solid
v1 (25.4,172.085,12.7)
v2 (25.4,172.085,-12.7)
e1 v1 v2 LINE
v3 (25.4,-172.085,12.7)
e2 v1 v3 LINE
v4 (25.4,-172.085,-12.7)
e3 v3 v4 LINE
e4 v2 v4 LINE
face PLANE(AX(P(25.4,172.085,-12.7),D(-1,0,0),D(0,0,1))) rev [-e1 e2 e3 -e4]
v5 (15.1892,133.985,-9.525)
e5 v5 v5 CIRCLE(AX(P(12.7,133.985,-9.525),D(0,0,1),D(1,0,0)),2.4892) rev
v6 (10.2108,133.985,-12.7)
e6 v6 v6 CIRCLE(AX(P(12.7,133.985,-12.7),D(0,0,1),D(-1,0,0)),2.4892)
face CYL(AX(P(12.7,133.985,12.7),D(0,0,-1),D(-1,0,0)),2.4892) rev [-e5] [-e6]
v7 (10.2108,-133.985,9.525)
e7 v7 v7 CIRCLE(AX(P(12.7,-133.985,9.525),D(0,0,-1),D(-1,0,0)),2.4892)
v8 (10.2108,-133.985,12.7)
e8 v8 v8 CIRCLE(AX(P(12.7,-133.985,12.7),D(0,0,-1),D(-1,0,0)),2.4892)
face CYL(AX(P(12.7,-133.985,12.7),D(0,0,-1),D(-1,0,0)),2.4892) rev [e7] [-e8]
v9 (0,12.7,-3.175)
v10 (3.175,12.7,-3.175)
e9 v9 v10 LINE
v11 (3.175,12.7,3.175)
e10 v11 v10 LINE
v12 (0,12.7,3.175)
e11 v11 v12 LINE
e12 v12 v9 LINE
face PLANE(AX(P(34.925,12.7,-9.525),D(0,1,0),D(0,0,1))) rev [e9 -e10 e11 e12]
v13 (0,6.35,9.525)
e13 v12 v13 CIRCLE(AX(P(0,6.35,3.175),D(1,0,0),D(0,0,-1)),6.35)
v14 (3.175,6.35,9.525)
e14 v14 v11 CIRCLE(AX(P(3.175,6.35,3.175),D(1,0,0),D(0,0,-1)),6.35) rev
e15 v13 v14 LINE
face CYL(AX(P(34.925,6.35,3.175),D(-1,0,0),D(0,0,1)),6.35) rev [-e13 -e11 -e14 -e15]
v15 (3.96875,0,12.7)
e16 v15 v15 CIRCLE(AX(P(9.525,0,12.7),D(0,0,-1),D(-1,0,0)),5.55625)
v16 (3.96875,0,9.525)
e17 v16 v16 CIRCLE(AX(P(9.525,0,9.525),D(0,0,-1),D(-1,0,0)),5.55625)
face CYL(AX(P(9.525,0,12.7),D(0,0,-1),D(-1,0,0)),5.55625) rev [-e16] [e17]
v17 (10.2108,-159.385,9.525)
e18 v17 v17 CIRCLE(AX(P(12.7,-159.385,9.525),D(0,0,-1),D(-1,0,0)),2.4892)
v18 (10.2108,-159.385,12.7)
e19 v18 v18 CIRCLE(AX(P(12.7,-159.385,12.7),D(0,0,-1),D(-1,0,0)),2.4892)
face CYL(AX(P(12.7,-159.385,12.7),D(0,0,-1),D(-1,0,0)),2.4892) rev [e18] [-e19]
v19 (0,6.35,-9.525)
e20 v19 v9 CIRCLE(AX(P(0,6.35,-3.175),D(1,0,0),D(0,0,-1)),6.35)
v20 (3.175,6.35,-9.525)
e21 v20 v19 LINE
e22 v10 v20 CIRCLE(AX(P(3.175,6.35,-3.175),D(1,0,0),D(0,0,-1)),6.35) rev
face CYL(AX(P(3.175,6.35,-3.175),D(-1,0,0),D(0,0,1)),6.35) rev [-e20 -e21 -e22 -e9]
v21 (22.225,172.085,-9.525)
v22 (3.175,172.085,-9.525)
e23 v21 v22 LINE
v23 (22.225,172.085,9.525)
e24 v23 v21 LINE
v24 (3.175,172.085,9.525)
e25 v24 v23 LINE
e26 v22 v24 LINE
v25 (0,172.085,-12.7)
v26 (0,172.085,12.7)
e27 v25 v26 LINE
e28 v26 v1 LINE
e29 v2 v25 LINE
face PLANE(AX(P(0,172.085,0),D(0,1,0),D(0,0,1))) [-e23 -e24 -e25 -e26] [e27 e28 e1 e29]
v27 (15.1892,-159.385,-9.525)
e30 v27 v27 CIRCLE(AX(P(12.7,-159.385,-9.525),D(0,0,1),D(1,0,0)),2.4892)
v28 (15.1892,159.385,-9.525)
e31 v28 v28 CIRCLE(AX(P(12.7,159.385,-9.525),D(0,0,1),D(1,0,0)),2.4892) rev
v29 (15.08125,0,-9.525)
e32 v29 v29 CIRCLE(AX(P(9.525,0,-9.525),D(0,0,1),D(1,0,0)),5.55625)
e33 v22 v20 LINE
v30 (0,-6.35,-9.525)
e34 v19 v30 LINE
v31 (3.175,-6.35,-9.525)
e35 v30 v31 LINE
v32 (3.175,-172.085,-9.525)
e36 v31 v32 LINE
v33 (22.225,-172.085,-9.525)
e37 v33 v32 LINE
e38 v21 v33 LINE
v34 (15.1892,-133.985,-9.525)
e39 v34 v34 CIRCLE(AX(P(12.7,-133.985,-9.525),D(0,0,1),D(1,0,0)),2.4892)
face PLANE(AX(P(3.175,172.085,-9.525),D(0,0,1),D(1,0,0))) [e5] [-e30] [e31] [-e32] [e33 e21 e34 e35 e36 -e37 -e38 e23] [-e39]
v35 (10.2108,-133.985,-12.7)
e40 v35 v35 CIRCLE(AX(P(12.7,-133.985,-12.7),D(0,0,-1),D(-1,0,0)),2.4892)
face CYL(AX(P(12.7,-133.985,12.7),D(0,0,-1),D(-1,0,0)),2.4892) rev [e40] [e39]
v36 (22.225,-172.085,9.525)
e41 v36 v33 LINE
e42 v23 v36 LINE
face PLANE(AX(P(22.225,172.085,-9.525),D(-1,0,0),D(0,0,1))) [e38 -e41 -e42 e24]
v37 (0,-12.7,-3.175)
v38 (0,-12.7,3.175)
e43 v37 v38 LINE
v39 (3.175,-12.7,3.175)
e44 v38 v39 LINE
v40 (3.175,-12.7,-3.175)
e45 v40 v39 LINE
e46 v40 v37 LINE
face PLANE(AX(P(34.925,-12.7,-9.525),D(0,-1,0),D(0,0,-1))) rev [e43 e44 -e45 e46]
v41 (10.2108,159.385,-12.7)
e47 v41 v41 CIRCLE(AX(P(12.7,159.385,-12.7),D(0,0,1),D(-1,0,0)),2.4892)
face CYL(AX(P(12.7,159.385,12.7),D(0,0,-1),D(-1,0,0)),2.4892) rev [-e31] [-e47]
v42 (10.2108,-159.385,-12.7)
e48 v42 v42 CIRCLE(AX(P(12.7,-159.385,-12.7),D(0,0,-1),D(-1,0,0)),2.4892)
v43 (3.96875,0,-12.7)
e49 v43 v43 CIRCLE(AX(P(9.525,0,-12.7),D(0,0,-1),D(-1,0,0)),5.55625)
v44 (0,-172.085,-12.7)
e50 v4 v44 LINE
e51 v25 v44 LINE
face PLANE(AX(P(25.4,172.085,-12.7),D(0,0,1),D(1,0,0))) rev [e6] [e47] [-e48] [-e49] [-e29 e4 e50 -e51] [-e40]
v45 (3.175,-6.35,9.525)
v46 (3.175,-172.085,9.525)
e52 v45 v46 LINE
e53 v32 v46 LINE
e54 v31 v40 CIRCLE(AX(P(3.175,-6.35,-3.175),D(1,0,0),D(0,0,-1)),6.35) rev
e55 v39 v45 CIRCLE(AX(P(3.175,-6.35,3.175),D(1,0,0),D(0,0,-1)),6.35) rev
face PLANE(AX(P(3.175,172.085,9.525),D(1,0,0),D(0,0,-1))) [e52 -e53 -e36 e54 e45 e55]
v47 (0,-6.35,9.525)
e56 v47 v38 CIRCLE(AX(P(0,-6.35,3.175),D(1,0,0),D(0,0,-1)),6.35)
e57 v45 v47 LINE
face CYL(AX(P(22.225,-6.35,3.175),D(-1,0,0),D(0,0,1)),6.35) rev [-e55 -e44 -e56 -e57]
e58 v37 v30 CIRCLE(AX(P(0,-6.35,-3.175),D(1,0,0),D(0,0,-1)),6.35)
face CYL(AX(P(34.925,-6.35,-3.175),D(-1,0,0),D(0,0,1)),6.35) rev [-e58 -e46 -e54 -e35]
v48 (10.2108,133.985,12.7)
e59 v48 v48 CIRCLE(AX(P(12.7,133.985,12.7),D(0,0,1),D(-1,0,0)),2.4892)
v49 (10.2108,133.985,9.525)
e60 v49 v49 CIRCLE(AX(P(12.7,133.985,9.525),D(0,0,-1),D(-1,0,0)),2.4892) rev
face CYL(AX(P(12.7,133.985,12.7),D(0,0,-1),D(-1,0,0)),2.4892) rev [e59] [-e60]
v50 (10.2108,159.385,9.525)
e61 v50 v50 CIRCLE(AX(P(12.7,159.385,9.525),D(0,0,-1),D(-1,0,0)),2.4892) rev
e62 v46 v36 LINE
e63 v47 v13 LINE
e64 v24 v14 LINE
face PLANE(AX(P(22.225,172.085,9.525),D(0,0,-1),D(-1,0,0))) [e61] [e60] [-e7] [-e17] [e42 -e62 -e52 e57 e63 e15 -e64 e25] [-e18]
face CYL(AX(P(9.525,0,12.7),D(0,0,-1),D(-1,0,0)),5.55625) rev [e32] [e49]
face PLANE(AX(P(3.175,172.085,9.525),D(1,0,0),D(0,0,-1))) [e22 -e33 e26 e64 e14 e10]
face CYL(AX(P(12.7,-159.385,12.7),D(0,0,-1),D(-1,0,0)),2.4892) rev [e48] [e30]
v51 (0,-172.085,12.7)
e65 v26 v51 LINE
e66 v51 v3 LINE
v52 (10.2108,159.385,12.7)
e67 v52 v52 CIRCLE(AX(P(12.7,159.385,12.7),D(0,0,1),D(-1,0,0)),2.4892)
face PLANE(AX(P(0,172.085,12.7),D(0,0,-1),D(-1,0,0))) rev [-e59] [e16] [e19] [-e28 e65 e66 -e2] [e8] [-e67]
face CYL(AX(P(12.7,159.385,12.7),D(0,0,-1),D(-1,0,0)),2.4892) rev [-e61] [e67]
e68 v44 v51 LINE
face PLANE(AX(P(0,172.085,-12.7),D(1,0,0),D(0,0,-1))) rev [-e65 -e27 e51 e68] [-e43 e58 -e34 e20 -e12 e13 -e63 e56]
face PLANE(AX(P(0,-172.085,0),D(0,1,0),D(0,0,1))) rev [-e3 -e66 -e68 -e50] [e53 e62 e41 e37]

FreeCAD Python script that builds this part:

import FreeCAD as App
import Part
import Sketcher

V = App.Vector
Q = App.Units.Quantity


def edges_at(feature, points):
    """Names of the edges that pass closest to the given points."""
    edges = feature.Shape.Edges
    near = lambda p: min(range(len(edges)), key=lambda i: edges[i].distToShape(Part.Vertex(*p))[0])
    return sorted({f"Edge{near(p) + 1}" for p in points})


def add_polygon(sketch, points):
    """Adds a closed chain of lines whose ends are joined by coincident constraints."""
    first, n = sketch.GeometryCount, len(points)
    for a, b in zip(points, points[1:] + points[:1]):
        sketch.addGeometry(Part.LineSegment(App.Vector(*a, 0), App.Vector(*b, 0)), False)
    for i in range(n):
        sketch.addConstraint(Sketcher.Constraint("Coincident", first + i, 2, first + (i + 1) % n, 1))

doc = App.newDocument("Part")
body = doc.addObject("PartDesign::Body", "Body")

# Sketch on XZ plane
sketch1 = doc.addObject("Sketcher::SketchObject", "Sketch")
body.addObject(sketch1)
sketch1.AttachmentSupport = (doc.XZ_Plane, [""])
sketch1.MapMode = "FlatFace"
add_polygon(sketch1, [(0, -12.7), (0, 12.7), (25.4, 12.7), (25.4, -12.7)])  # lines 0-3
add_polygon(sketch1, [(22.225, 9.525), (3.175, 9.525), (3.175, -9.525), (22.225, -9.525)])  # lines 4-7
sketch1.addConstraint(Sketcher.Constraint("Vertical", 0))
sketch1.addConstraint(Sketcher.Constraint("Horizontal", 1))
sketch1.addConstraint(Sketcher.Constraint("Vertical", 2))
sketch1.addConstraint(Sketcher.Constraint("Horizontal", 3))
sketch1.addConstraint(Sketcher.Constraint("Horizontal", 4))
sketch1.addConstraint(Sketcher.Constraint("Vertical", 5))
sketch1.addConstraint(Sketcher.Constraint("Horizontal", 6))
sketch1.addConstraint(Sketcher.Constraint("Vertical", 7))
sketch1.addConstraint(Sketcher.Constraint("Symmetric", 0, 2, 3, 2, -1, 1))
sketch1.addConstraint(Sketcher.Constraint("Equal", 3, 0))
sketch1.addConstraint(Sketcher.Constraint("Equal", 6, 5))
sketch1.addConstraint(Sketcher.Constraint("DistanceX", 1, 1, 1, 2, Q("1 in")))
sketch1.addConstraint(Sketcher.Constraint("DistanceX", 4, 2, 4, 1, Q("0.75 in")))
sketch1.addConstraint(Sketcher.Constraint("DistanceX", -1, 1, 4, 2, Q("0.125 in")))
sketch1.addConstraint(Sketcher.Constraint("DistanceY", -1, 1, 4, 2, Q("0.375 in")))
pad1 = doc.addObject("PartDesign::Pad", "Pad")
body.addObject(pad1)
pad1.Profile = sketch1
pad1.Length = Q("13.55 in")
pad1.Midplane = True

# Sketch on YZ plane
sketch2 = doc.addObject("Sketcher::SketchObject", "Sketch001")
body.addObject(sketch2)
sketch2.AttachmentSupport = (doc.YZ_Plane, [""])
sketch2.MapMode = "FlatFace"
add_polygon(sketch2, [(12.7, -9.525), (-12.7, -9.525), (-12.7, 9.525), (12.7, 9.525)])  # lines 0-3
sketch2.addConstraint(Sketcher.Constraint("Horizontal", 0))
sketch2.addConstraint(Sketcher.Constraint("Vertical", 1))
sketch2.addConstraint(Sketcher.Constraint("Horizontal", 2))
sketch2.addConstraint(Sketcher.Constraint("Vertical", 3))
sketch2.addConstraint(Sketcher.Constraint("Symmetric", 0, 2, 2, 2, -1, 1))
sketch2.addConstraint(Sketcher.Constraint("DistanceX", 0, 2, 0, 1, Q("1 in")))
sketch2.addConstraint(Sketcher.Constraint("DistanceY", 1, 1, 1, 2, Q("0.75 in")))
pocket1 = doc.addObject("PartDesign::Pocket", "Pocket")
body.addObject(pocket1)
pocket1.Profile = sketch2
pocket1.Length = Q("0.125 in")
pocket1.Reversed = True

# Sketch on XY plane
sketch3 = doc.addObject("Sketcher::SketchObject", "Sketch002")
body.addObject(sketch3)
sketch3.AttachmentSupport = (doc.XY_Plane, [""])
sketch3.MapMode = "FlatFace"
sketch3.AttachmentOffset = App.Placement(V(0, 0, -0.5 * 25.4), App.Rotation())
sketch3.addGeometry(Part.Circle(V(12.7, -159.385, 0), V(0, 0, 1), 2.4892), False)
sketch3.addGeometry(Part.Circle(V(12.7, -133.985, 0), V(0, 0, 1), 2.4892), False)
sketch3.addGeometry(Part.Circle(V(9.525, 0, 0), V(0, 0, 1), 5.55625), False)
sketch3.addConstraint(Sketcher.Constraint("Equal", 0, 1))
sketch3.addConstraint(Sketcher.Constraint("PointOnObject", 2, 3, -1))
sketch3.addConstraint(Sketcher.Constraint("Vertical", 0, 3, 1, 3))
sketch3.addConstraint(Sketcher.Constraint("Diameter", 0, Q("0.196 in")))
sketch3.addConstraint(Sketcher.Constraint("Diameter", 2, Q("0.4375 in")))
sketch3.addConstraint(Sketcher.Constraint("DistanceY", 0, 3, 1, 3, Q("1 in")))
sketch3.addConstraint(Sketcher.Constraint("DistanceX", -1, 1, 0, 3, Q("0.5 in")))
sketch3.addConstraint(Sketcher.Constraint("DistanceY", 0, 3, -1, 1, Q("6.275 in")))
sketch3.addConstraint(Sketcher.Constraint("DistanceX", -1, 1, 2, 3, Q("0.375 in")))
pocket2 = doc.addObject("PartDesign::Pocket", "Pocket001")
body.addObject(pocket2)
pocket2.Profile = sketch3
pocket2.Type = "ThroughAll"
pocket2.Reversed = True
doc.recompute()

mirrored = doc.addObject("PartDesign::Mirrored", "Mirrored")
body.addObject(mirrored)
mirrored.Originals = [pocket2]
mirrored.MirrorPlane = (doc.XZ_Plane, [""])
body.Tip = mirrored
doc.recompute()

fillet = doc.addObject("PartDesign::Fillet", "Fillet")
body.addObject(fillet)
fillet.Base = (mirrored, edges_at(mirrored, [
    (1.587, 12.7, -9.525),
    (1.587, -12.7, -9.525),
    (1.587, -12.7, 9.525),
    (1.587, 12.7, 9.525),
]))
fillet.Radius = Q("0.25 in")

doc.recompute()
